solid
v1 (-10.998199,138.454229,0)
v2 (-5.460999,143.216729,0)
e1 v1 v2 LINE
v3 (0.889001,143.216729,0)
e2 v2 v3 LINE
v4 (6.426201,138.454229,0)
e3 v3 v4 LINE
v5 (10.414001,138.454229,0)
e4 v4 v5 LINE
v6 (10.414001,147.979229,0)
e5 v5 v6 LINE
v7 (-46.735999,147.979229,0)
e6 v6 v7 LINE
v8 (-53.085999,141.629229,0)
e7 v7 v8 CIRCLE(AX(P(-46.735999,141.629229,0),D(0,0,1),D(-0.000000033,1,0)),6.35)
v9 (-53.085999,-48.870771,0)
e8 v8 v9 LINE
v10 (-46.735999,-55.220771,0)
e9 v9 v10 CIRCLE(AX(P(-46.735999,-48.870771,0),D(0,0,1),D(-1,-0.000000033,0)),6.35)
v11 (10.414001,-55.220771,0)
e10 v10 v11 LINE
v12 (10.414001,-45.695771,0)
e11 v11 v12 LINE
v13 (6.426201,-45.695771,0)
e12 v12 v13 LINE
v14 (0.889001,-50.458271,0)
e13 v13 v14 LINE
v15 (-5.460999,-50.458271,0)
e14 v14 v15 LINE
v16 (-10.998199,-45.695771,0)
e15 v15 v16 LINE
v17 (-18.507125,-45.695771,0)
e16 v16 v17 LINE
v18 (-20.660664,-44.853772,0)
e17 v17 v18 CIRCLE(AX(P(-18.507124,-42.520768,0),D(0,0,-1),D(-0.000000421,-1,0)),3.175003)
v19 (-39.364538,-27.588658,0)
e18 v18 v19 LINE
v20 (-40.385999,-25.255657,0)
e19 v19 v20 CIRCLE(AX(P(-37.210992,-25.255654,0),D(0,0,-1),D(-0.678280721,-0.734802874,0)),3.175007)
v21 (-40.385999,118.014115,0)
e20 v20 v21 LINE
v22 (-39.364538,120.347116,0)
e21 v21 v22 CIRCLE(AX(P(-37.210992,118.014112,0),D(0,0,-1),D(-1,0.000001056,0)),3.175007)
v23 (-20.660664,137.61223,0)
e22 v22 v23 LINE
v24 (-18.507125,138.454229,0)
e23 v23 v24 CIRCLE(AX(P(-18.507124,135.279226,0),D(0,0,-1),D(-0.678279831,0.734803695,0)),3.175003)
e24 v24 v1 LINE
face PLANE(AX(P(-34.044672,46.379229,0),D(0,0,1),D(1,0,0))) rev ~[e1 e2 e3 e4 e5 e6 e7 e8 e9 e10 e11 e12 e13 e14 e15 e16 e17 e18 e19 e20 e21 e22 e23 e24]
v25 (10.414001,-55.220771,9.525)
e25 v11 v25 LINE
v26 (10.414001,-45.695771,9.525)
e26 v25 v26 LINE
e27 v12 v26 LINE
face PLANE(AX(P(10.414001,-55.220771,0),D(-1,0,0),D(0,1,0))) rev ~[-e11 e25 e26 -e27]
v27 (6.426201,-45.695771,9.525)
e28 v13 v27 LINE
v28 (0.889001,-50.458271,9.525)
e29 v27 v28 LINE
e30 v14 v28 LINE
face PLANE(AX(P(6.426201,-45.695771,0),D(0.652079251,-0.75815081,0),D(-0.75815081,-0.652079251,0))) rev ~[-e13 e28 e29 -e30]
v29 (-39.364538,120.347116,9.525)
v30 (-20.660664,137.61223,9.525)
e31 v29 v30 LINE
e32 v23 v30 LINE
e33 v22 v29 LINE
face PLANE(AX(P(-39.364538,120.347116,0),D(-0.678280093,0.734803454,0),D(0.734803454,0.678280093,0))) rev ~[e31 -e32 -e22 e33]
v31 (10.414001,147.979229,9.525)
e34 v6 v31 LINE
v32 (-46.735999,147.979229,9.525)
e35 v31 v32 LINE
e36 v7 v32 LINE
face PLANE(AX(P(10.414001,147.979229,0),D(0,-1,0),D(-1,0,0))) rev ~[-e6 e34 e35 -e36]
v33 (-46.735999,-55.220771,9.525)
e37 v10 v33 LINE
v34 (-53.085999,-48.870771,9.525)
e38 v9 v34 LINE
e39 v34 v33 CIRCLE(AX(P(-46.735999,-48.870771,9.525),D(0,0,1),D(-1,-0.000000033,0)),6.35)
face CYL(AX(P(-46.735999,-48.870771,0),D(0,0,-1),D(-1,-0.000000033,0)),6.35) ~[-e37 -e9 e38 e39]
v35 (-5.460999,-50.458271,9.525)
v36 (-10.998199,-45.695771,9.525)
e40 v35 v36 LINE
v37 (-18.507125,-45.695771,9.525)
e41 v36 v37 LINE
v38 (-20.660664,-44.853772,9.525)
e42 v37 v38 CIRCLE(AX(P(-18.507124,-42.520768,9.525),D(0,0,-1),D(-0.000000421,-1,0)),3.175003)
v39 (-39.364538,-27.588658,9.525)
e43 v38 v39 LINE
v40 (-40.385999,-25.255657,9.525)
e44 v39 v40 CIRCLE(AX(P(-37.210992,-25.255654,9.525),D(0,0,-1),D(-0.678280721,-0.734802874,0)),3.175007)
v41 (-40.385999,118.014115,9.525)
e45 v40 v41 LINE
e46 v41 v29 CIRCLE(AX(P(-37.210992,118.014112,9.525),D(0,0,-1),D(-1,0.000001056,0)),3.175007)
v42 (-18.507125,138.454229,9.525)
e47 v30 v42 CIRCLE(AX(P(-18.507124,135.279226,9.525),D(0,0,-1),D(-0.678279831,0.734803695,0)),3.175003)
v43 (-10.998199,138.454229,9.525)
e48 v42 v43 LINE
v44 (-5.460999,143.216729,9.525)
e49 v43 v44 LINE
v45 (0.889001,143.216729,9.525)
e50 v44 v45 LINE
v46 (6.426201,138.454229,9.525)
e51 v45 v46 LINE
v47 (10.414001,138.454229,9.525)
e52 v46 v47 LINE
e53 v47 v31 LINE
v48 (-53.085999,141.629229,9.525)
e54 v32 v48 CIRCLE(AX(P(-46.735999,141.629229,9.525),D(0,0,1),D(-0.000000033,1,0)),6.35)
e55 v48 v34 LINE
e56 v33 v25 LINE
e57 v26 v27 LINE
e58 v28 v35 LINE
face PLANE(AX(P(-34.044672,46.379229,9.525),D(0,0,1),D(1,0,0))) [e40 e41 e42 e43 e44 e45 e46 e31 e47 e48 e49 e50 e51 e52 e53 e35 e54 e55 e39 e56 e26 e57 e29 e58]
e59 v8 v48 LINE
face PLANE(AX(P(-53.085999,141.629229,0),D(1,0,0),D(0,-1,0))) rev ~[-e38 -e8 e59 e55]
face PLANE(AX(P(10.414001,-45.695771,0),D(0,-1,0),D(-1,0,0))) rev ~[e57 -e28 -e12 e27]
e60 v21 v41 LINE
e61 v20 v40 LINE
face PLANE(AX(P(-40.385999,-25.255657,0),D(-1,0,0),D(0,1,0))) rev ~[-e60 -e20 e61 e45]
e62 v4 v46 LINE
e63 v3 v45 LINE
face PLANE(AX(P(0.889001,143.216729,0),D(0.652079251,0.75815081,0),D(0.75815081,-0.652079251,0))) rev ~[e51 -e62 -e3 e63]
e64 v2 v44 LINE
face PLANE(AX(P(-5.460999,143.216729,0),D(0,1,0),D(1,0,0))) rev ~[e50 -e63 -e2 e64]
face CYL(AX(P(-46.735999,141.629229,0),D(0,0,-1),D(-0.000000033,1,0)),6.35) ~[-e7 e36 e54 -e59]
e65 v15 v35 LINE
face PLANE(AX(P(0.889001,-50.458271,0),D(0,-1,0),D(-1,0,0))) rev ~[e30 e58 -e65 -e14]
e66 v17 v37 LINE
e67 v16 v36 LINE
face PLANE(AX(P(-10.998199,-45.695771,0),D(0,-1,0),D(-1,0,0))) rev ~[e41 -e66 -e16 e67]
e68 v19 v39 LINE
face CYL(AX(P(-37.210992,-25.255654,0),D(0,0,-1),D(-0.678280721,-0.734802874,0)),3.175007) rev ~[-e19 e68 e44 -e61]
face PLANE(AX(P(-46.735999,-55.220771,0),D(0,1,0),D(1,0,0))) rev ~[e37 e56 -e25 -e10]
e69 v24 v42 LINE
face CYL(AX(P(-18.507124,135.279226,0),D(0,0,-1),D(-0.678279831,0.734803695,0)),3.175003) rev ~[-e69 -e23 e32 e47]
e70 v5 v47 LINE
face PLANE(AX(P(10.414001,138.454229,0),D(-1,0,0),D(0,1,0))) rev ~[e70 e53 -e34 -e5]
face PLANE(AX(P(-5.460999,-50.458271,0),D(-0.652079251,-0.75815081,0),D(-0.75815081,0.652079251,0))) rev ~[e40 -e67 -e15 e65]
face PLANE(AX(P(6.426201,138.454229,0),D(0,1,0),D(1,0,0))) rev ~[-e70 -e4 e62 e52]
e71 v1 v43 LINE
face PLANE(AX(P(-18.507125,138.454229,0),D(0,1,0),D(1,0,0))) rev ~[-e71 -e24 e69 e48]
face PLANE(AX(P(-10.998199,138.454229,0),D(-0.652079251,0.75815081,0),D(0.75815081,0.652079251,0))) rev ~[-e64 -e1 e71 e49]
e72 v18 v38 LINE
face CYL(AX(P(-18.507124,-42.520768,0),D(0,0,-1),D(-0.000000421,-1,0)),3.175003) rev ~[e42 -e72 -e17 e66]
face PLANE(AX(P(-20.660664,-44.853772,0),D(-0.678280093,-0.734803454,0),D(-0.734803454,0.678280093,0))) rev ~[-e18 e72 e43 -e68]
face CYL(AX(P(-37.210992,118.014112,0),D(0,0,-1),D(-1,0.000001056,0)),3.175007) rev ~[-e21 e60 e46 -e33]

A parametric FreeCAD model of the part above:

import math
import FreeCAD as App
import Part
import Sketcher
Q = App.Units.Quantity

doc = App.newDocument("Part")
body = doc.addObject("PartDesign::Body", "Body")

# Sketch on XY plane
sketch1 = body.newObject("Sketcher::SketchObject", "Sketch")
sketch1.AttachmentSupport = (doc.getObject("XY_Plane"), [""])
sketch1.MapMode = "FlatFace"
sketch1.addGeometry(Part.ArcOfCircle(Part.Circle(App.Vector(-46.735999, 141.629229, 0), App.Vector(0, 0, 1), 6.35), math.radians(90.000002), math.radians(179.999998)), False)
sketch1.addGeometry(Part.LineSegment(App.Vector(-53.085999, 141.629229, 0), App.Vector(-53.085999, -48.870771, 0)), False)
sketch1.addGeometry(Part.ArcOfCircle(Part.Circle(App.Vector(-46.735999, -48.870771, 0), App.Vector(0, 0, 1), 6.35), math.radians(-179.999998), math.radians(-90.000002)), False)
sketch1.addGeometry(Part.LineSegment(App.Vector(-46.735999, -55.220771, 0), App.Vector(10.414001, -55.220771, 0)), False)
sketch1.addGeometry(Part.LineSegment(App.Vector(10.414001, -55.220771, 0), App.Vector(10.414001, -45.695771, 0)), False)
sketch1.addGeometry(Part.LineSegment(App.Vector(10.414001, -45.695771, 0), App.Vector(6.426201, -45.695771, 0)), False)
sketch1.addGeometry(Part.LineSegment(App.Vector(6.426201, -45.695771, 0), App.Vector(0.889001, -50.458271, 0)), False)
sketch1.addGeometry(Part.LineSegment(App.Vector(0.889001, -50.458271, 0), App.Vector(-5.460999, -50.458271, 0)), False)
sketch1.addGeometry(Part.LineSegment(App.Vector(-5.460999, -50.458271, 0), App.Vector(-10.998199, -45.695771, 0)), False)
sketch1.addGeometry(Part.LineSegment(App.Vector(-10.998199, -45.695771, 0), App.Vector(-18.507125, -45.695771, 0)), False)
sketch1.addGeometry(Part.ArcOfCircle(Part.Circle(App.Vector(-18.507124, -42.520768, 0), App.Vector(0, 0, 1), 3.175003), math.radians(-132.709369), math.radians(-90.000024)), False)
sketch1.addGeometry(Part.LineSegment(App.Vector(-20.660664, -44.853772, 0), App.Vector(-39.364538, -27.588658, 0)), False)
sketch1.addGeometry(Part.ArcOfCircle(Part.Circle(App.Vector(-37.210992, -25.255654, 0), App.Vector(0, 0, 1), 3.175007), math.radians(-179.999939), math.radians(-132.709438)), False)
sketch1.addGeometry(Part.LineSegment(App.Vector(-40.385999, -25.255657, 0), App.Vector(-40.385999, 118.014115, 0)), False)
sketch1.addGeometry(Part.ArcOfCircle(Part.Circle(App.Vector(-37.210992, 118.014112, 0), App.Vector(0, 0, 1), 3.175007), math.radians(132.709438), math.radians(179.999939)), False)
sketch1.addGeometry(Part.LineSegment(App.Vector(-39.364538, 120.347116, 0), App.Vector(-20.660664, 137.61223, 0)), False)
sketch1.addGeometry(Part.ArcOfCircle(Part.Circle(App.Vector(-18.507124, 135.279226, 0), App.Vector(0, 0, 1), 3.175003), math.radians(90.000024), math.radians(132.709369)), False)
sketch1.addGeometry(Part.LineSegment(App.Vector(-18.507125, 138.454229, 0), App.Vector(-10.998199, 138.454229, 0)), False)
sketch1.addGeometry(Part.LineSegment(App.Vector(-10.998199, 138.454229, 0), App.Vector(-5.460999, 143.216729, 0)), False)
sketch1.addGeometry(Part.LineSegment(App.Vector(-5.460999, 143.216729, 0), App.Vector(0.889001, 143.216729, 0)), False)
sketch1.addGeometry(Part.LineSegment(App.Vector(0.889001, 143.216729, 0), App.Vector(6.426201, 138.454229, 0)), False)
sketch1.addGeometry(Part.LineSegment(App.Vector(6.426201, 138.454229, 0), App.Vector(10.414001, 138.454229, 0)), False)
sketch1.addGeometry(Part.LineSegment(App.Vector(10.414001, 138.454229, 0), App.Vector(10.414001, 147.979229, 0)), False)
sketch1.addGeometry(Part.LineSegment(App.Vector(10.414001, 147.979229, 0), App.Vector(-46.735999, 147.979229, 0)), False)
sketch1.addConstraint(Sketcher.Constraint("Tangent", 0, 2, 1, 1))
sketch1.addConstraint(Sketcher.Constraint("Tangent", 1, 2, 2, 1))
sketch1.addConstraint(Sketcher.Constraint("Tangent", 2, 2, 3, 1))
sketch1.addConstraint(Sketcher.Constraint("Coincident", 3, 2, 4, 1))
sketch1.addConstraint(Sketcher.Constraint("Coincident", 4, 2, 5, 1))
sketch1.addConstraint(Sketcher.Constraint("Coincident", 5, 2, 6, 1))
sketch1.addConstraint(Sketcher.Constraint("Coincident", 6, 2, 7, 1))
sketch1.addConstraint(Sketcher.Constraint("Coincident", 7, 2, 8, 1))
sketch1.addConstraint(Sketcher.Constraint("Coincident", 8, 2, 9, 1))
sketch1.addConstraint(Sketcher.Constraint("Tangent", 9, 2, 10, 2))
sketch1.addConstraint(Sketcher.Constraint("Tangent", 10, 1, 11, 1))
sketch1.addConstraint(Sketcher.Constraint("Tangent", 11, 2, 12, 2))
sketch1.addConstraint(Sketcher.Constraint("Tangent", 12, 1, 13, 1))
sketch1.addConstraint(Sketcher.Constraint("Tangent", 13, 2, 14, 2))
sketch1.addConstraint(Sketcher.Constraint("Tangent", 14, 1, 15, 1))
sketch1.addConstraint(Sketcher.Constraint("Tangent", 15, 2, 16, 2))
sketch1.addConstraint(Sketcher.Constraint("Tangent", 16, 1, 17, 1))
sketch1.addConstraint(Sketcher.Constraint("Coincident", 17, 2, 18, 1))
sketch1.addConstraint(Sketcher.Constraint("Coincident", 18, 2, 19, 1))
sketch1.addConstraint(Sketcher.Constraint("Coincident", 19, 2, 20, 1))
sketch1.addConstraint(Sketcher.Constraint("Coincident", 20, 2, 21, 1))
sketch1.addConstraint(Sketcher.Constraint("Coincident", 21, 2, 22, 1))
sketch1.addConstraint(Sketcher.Constraint("Coincident", 22, 2, 23, 1))
sketch1.addConstraint(Sketcher.Constraint("Tangent", 23, 2, 0, 1))
sketch1.addConstraint(Sketcher.Constraint("Vertical", 1))
sketch1.addConstraint(Sketcher.Constraint("Horizontal", 3))
sketch1.addConstraint(Sketcher.Constraint("Vertical", 4))
sketch1.addConstraint(Sketcher.Constraint("Horizontal", 5))
sketch1.addConstraint(Sketcher.Constraint("Horizontal", 7))
sketch1.addConstraint(Sketcher.Constraint("Horizontal", 9))
sketch1.addConstraint(Sketcher.Constraint("Vertical", 13))
sketch1.addConstraint(Sketcher.Constraint("Horizontal", 17))
sketch1.addConstraint(Sketcher.Constraint("Horizontal", 19))
sketch1.addConstraint(Sketcher.Constraint("Horizontal", 21))
sketch1.addConstraint(Sketcher.Constraint("Vertical", 22))
sketch1.addConstraint(Sketcher.Constraint("Horizontal", 23))
sketch1.addConstraint(Sketcher.Constraint("Equal", 0, 2))
sketch1.addConstraint(Sketcher.Constraint("Equal", 12, 14))
sketch1.addConstraint(Sketcher.Constraint("Equal", 10, 16))
sketch1.addConstraint(Sketcher.Constraint("Parallel", 6, 18))
sketch1.addConstraint(Sketcher.Constraint("Parallel", 8, 20))
sketch1.addConstraint(Sketcher.Constraint("Horizontal", 5, 2, 8, 2))
sketch1.addConstraint(Sketcher.Constraint("Horizontal", 17, 2, 20, 2))
sketch1.addConstraint(Sketcher.Constraint("Vertical", 10, 3, 16, 3))
sketch1.addConstraint(Sketcher.Constraint("Vertical", 11, 2, 14, 1))
sketch1.addConstraint(Sketcher.Constraint("Vertical", 8, 2, 17, 2))
sketch1.addConstraint(Sketcher.Constraint("Vertical", 7, 2, 18, 2))
sketch1.addConstraint(Sketcher.Constraint("Vertical", 6, 2, 19, 2))
sketch1.addConstraint(Sketcher.Constraint("Vertical", 5, 2, 20, 2))
sketch1.addConstraint(Sketcher.Constraint("Vertical", 4, 2, 21, 2))
sketch1.addConstraint(Sketcher.Constraint("Equal", 4, 22))
sketch1.addConstraint(Sketcher.Constraint("Radius", 0, Q("0.25 in")))
sketch1.addConstraint(Sketcher.Constraint("DistanceY", 1, 2, 1, 1, Q("7.5 in")))
sketch1.addConstraint(Sketcher.Constraint("Radius", 10, Q("0.1250001 in")))
sketch1.addConstraint(Sketcher.Constraint("DistanceX", 3, 1, 3, 2, Q("2.25 in")))
sketch1.addConstraint(Sketcher.Constraint("DistanceX", 7, 2, 7, 1, Q("0.25 in")))
sketch1.addConstraint(Sketcher.Constraint("DistanceY", 2, 2, 10, 3, Q("0.5000001 in")))
sketch1.addConstraint(Sketcher.Constraint("DistanceX", 1, 2, 12, 1, Q("0.5 in")))
sketch1.addConstraint(Sketcher.Constraint("DistanceX", 5, 2, 5, 1, Q("0.157 in")))
sketch1.addConstraint(Sketcher.Constraint("DistanceX", 0, 3, -1, 1, Q("1.84 in")))
sketch1.addConstraint(Sketcher.Constraint("DistanceX", -1, 1, 6, 2, Q("0.035 in")))
sketch1.addConstraint(Sketcher.Constraint("DistanceY", 6, 2, 5, 2, Q("0.1875 in")))
sketch1.addConstraint(Sketcher.Constraint("Radius", 12, Q("3.175007 mm")))
sketch1.addConstraint(Sketcher.Constraint("DistanceY", 13, 1, 13, 2, Q("143.269772 mm")))
sketch1.addConstraint(Sketcher.Constraint("DistanceY", 9, 2, 10, 1, Q("0.841999 mm")))
sketch1.addConstraint(Sketcher.Constraint("DistanceY", -1, 1, 0, 3, Q("141.629229 mm")))
pad1 = body.newObject("PartDesign::Pad", "Pad")
pad1.Profile = sketch1
pad1.Length = Q("0.375 in")

doc.recompute()
